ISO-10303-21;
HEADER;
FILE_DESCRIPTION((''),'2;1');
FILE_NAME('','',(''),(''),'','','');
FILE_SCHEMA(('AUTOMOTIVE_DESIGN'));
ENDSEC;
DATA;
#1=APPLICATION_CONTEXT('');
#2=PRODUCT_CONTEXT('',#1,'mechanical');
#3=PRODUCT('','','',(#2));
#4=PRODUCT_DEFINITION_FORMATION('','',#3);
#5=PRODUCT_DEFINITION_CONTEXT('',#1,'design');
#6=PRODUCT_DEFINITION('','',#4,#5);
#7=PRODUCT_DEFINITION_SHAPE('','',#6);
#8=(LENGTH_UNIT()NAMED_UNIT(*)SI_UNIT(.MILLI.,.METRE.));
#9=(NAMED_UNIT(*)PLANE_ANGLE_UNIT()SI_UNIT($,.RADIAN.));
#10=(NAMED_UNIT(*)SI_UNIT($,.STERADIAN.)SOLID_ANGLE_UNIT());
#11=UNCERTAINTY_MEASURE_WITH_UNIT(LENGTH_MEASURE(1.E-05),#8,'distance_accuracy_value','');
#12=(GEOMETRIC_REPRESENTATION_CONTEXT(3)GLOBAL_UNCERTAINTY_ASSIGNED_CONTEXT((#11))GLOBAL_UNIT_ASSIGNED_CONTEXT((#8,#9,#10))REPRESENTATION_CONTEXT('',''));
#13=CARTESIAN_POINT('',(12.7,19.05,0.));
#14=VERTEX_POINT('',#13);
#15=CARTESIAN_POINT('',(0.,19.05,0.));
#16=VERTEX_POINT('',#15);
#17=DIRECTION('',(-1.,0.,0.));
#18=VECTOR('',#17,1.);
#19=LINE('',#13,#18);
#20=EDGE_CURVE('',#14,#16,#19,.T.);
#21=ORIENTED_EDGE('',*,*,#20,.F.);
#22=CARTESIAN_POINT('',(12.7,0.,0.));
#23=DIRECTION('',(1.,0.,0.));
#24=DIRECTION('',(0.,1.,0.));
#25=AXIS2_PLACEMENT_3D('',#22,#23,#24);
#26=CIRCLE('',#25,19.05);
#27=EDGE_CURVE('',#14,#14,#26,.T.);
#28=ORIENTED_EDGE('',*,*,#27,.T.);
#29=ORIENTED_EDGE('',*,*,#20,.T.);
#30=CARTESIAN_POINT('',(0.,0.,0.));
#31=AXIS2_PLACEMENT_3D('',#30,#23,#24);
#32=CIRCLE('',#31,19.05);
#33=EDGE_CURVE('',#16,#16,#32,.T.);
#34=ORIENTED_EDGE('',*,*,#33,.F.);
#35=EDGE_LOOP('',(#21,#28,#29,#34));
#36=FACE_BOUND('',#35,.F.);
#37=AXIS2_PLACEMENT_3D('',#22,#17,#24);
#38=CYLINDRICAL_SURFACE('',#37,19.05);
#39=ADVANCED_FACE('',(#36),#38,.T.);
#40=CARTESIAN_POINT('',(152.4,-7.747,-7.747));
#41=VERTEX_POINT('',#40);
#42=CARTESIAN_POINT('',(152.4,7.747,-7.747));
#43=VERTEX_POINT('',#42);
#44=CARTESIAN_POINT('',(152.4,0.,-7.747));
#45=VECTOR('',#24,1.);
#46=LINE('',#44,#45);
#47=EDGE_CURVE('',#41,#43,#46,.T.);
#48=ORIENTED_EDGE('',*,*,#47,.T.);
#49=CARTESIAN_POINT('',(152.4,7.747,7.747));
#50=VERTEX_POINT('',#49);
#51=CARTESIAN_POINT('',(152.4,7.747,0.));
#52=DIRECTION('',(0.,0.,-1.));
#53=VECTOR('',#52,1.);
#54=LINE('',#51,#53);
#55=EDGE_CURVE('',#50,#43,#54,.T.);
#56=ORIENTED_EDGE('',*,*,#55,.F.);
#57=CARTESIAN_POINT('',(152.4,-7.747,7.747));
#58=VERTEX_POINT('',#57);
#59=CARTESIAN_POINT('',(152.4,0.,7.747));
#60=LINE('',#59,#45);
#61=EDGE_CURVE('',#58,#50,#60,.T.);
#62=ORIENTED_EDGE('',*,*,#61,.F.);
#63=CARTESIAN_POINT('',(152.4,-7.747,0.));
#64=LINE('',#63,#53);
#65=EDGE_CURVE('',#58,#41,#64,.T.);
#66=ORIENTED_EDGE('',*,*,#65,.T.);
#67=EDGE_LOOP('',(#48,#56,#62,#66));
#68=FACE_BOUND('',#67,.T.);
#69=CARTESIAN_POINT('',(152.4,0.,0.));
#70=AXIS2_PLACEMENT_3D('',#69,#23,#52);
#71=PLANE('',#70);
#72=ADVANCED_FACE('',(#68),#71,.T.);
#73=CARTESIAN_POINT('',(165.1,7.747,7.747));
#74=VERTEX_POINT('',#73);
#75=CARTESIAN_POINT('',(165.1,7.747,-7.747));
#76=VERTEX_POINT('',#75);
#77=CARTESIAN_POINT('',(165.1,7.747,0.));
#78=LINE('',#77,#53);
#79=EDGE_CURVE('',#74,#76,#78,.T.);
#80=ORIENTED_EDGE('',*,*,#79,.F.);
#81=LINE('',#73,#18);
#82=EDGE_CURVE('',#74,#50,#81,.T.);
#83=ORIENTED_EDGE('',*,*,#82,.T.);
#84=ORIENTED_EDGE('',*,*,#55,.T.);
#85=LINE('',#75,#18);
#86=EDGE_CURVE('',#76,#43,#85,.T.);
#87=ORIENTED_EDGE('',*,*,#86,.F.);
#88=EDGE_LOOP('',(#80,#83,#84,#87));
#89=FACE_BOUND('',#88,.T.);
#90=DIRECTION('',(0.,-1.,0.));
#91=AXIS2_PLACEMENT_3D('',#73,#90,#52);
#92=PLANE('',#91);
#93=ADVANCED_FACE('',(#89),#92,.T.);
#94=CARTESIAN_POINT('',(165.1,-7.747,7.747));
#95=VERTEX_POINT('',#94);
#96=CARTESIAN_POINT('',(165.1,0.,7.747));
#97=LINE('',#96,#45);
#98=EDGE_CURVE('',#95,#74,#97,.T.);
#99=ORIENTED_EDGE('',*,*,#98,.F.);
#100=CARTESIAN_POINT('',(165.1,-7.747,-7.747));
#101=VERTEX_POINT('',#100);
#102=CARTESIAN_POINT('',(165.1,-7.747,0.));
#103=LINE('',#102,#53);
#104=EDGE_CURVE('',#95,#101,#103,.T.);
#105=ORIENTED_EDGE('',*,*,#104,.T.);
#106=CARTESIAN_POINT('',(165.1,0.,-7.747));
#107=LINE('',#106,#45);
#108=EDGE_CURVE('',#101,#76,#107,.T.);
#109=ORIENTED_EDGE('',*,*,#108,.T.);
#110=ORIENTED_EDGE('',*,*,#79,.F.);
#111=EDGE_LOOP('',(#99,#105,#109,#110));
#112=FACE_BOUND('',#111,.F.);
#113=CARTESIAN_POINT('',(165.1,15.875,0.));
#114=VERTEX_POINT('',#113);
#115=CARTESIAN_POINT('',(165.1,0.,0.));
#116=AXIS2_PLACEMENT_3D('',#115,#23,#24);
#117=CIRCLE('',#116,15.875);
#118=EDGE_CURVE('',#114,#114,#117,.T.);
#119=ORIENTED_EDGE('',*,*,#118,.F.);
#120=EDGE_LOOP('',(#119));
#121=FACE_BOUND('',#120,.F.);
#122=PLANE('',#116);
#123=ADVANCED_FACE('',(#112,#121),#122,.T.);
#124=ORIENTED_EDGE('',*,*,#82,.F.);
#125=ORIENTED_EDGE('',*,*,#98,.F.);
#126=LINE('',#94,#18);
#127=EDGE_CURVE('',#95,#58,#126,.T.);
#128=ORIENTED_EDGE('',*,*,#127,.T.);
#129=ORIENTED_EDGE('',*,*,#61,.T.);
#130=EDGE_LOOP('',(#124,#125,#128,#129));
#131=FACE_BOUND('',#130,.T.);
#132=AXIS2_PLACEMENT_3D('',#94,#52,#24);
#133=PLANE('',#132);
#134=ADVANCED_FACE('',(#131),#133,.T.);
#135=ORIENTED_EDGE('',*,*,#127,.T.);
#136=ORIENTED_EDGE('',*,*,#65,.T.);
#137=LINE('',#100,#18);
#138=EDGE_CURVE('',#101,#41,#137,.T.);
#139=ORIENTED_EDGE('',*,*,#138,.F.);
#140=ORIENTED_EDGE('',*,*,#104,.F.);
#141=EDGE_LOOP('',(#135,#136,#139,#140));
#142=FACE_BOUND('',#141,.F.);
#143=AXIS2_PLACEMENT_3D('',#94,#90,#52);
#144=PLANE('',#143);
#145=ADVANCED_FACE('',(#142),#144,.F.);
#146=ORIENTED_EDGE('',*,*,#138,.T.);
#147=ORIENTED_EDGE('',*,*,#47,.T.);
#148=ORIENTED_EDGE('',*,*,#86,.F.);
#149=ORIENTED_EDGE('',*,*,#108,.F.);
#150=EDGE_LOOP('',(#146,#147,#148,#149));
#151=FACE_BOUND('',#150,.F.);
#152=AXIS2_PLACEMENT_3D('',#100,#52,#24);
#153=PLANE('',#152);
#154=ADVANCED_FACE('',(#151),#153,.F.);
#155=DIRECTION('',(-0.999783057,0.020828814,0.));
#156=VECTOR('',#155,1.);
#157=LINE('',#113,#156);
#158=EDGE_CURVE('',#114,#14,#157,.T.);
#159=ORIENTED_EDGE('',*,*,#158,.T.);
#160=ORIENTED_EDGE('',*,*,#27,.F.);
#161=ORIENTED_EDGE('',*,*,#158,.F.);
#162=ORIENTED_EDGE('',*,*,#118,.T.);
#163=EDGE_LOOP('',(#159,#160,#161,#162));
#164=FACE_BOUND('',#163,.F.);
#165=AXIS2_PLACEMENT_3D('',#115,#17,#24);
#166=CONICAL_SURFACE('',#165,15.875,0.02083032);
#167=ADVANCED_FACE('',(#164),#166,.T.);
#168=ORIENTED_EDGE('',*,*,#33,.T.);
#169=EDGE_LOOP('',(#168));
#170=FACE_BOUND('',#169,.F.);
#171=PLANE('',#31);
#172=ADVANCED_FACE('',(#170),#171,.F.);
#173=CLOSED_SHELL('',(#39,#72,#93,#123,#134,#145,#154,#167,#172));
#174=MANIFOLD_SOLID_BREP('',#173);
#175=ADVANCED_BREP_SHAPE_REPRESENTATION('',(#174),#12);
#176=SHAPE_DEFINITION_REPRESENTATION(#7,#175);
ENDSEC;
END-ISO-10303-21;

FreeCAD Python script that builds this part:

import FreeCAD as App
import Part
import Sketcher
from FreeCAD import Vector
Q = App.Units.Quantity

doc = App.newDocument("Part")
body = doc.addObject("PartDesign::Body", "Body")

# Sketch on XY plane
sketch1 = body.newObject("Sketcher::SketchObject", "Sketch")
sketch1.AttachmentSupport = (doc.getObject("XY_Plane"), [""])
sketch1.MapMode = "FlatFace"
sketch1.addGeometry(Part.LineSegment(Vector(0, 0, 0), Vector(165, 0, 0)), False)
sketch1.addGeometry(Part.LineSegment(Vector(165, 0, 0), Vector(165, 16, 0)), False)
sketch1.addGeometry(Part.LineSegment(Vector(165, 16, 0), Vector(13, 19, 0)), False)
sketch1.addGeometry(Part.LineSegment(Vector(13, 19, 0), Vector(0, 19, 0)), False)
sketch1.addGeometry(Part.LineSegment(Vector(0, 19, 0), Vector(0, 0, 0)), False)
sketch1.addConstraint(Sketcher.Constraint("Coincident", 0, 2, 1, 1))
sketch1.addConstraint(Sketcher.Constraint("Coincident", 1, 2, 2, 1))
sketch1.addConstraint(Sketcher.Constraint("Coincident", 2, 2, 3, 1))
sketch1.addConstraint(Sketcher.Constraint("Coincident", 3, 2, 4, 1))
sketch1.addConstraint(Sketcher.Constraint("Coincident", 4, 2, 0, 1))
sketch1.addConstraint(Sketcher.Constraint("Horizontal", 0))
sketch1.addConstraint(Sketcher.Constraint("Vertical", 1))
sketch1.addConstraint(Sketcher.Constraint("Horizontal", 3))
sketch1.addConstraint(Sketcher.Constraint("Vertical", 4))
sketch1.addConstraint(Sketcher.Constraint("Coincident", 4, 2, -1, 1))
sketch1.addConstraint(Sketcher.Constraint("DistanceX", 0, 1, 0, 2, Q("6.5 in")))
sketch1.addConstraint(Sketcher.Constraint("DistanceX", 3, 2, 3, 1, Q("0.5 in")))
sketch1.addConstraint(Sketcher.Constraint("DistanceY", 4, 2, 4, 1, Q("0.75 in")))
sketch1.addConstraint(Sketcher.Constraint("DistanceY", 1, 1, 1, 2, Q("0.625 in")))
revolution = body.newObject("PartDesign::Revolution", "Revolution")
revolution.Profile = sketch1
revolution.ReferenceAxis = (sketch1, ["H_Axis"])
revolution.Angle = 360

# Sketch on YZ plane
sketch2 = body.newObject("Sketcher::SketchObject", "Sketch001")
sketch2.AttachmentSupport = (doc.getObject("YZ_Plane"), [""])
sketch2.MapMode = "FlatFace"
sketch2.AttachmentOffset = App.Placement(Vector(0, 0, 6.5 * 25.4), App.Rotation())
sketch2.addGeometry(Part.LineSegment(Vector(8, 8, 0), Vector(-8, 8, 0)), False)
sketch2.addGeometry(Part.LineSegment(Vector(-8, 8, 0), Vector(-8, -8, 0)), False)
sketch2.addGeometry(Part.LineSegment(Vector(-8, -8, 0), Vector(8, -8, 0)), False)
sketch2.addGeometry(Part.LineSegment(Vector(8, -8, 0), Vector(8, 8, 0)), False)
sketch2.addConstraint(Sketcher.Constraint("Coincident", 0, 2, 1, 1))
sketch2.addConstraint(Sketcher.Constraint("Coincident", 1, 2, 2, 1))
sketch2.addConstraint(Sketcher.Constraint("Coincident", 2, 2, 3, 1))
sketch2.addConstraint(Sketcher.Constraint("Coincident", 3, 2, 0, 1))
sketch2.addConstraint(Sketcher.Constraint("Horizontal", 0))
sketch2.addConstraint(Sketcher.Constraint("Vertical", 1))
sketch2.addConstraint(Sketcher.Constraint("Horizontal", 2))
sketch2.addConstraint(Sketcher.Constraint("Vertical", 3))
sketch2.addConstraint(Sketcher.Constraint("Symmetric", 0, 2, 2, 2, -1, 1))
sketch2.addConstraint(Sketcher.Constraint("Equal", 2, 1))
sketch2.addConstraint(Sketcher.Constraint("DistanceX", 0, 2, 0, 1, Q("0.61 in")))
pocket1 = body.newObject("PartDesign::Pocket", "Pocket")
pocket1.Profile = sketch2
pocket1.Length = Q("0.5 in")

doc.recompute()
